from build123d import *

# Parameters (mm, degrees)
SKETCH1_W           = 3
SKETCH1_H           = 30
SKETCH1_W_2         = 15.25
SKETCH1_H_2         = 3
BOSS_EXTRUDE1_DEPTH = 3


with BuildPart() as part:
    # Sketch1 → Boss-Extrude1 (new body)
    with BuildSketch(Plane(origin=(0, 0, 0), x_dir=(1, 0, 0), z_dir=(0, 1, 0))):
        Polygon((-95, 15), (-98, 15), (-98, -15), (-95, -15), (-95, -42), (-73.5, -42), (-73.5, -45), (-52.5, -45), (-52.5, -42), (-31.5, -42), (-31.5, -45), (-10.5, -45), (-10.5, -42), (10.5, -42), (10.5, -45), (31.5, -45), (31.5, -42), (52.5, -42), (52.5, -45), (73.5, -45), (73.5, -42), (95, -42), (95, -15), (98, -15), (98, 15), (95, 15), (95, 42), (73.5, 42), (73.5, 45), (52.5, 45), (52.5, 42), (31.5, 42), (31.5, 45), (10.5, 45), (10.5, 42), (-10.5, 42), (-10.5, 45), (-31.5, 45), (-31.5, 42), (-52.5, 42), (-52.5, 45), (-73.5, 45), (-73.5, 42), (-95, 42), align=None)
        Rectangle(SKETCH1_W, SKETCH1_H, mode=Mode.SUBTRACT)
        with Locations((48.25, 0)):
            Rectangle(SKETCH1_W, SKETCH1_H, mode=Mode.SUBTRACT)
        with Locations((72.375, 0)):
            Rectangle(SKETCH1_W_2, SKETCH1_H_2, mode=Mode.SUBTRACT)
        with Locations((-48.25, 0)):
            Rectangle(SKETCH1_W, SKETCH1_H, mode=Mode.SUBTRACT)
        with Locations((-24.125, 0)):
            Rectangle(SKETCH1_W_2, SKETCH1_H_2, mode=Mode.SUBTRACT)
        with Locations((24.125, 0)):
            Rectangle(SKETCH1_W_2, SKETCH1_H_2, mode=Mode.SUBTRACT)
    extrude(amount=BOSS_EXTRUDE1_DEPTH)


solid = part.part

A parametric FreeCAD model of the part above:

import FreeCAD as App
import Part
import Sketcher
Q = App.Units.Quantity


def add_polygon(sketch, points):
    """Adds a closed chain of lines whose ends are joined by coincident constraints."""
    first, n = sketch.GeometryCount, len(points)
    for a, b in zip(points, points[1:] + points[:1]):
        sketch.addGeometry(Part.LineSegment(App.Vector(*a, 0), App.Vector(*b, 0)), False)
    for i in range(n):
        sketch.addConstraint(Sketcher.Constraint("Coincident", first + i, 2, first + (i + 1) % n, 1))

doc = App.newDocument("Part")
body = doc.addObject("PartDesign::Body", "Body")

sketch1 = body.newObject("Sketcher::SketchObject", "Sketch")
sketch1.AttachmentSupport = (doc.getObject("XZ_Plane"), [""])
sketch1.MapMode = "FlatFace"
add_polygon(sketch1, [(-95, -15), (-98, -15), (-98, 15), (-95, 15), (-95, 42), (-73.5, 42), (-73.5, 45), (-52.5, 45), (-52.5, 42), (-31.5, 42), (-31.5, 45), (-10.5, 45), (-10.5, 42), (10.5, 42), (10.5, 45), (31.5, 45), (31.5, 42), (52.5, 42), (52.5, 45), (73.5, 45), (73.5, 42), (95, 42), (95, 15), (98, 15), (98, -15), (95, -15), (95, -42), (73.5, -42), (73.5, -45), (52.5, -45), (52.5, -42), (31.5, -42), (31.5, -45), (10.5, -45), (10.5, -42), (-10.5, -42), (-10.5, -45), (-31.5, -45), (-31.5, -42), (-52.5, -42), (-52.5, -45), (-73.5, -45), (-73.5, -42), (-95, -42)])
add_polygon(sketch1, [(-46.75, 15), (-49.75, 15), (-49.75, -15), (-46.75, -15)])
add_polygon(sketch1, [(-16.5, 1.5), (-31.75, 1.5), (-31.75, -1.5), (-16.5, -1.5)])
add_polygon(sketch1, [(1.5, 15), (-1.5, 15), (-1.5, -15), (1.5, -15)])
add_polygon(sketch1, [(31.75, 1.5), (16.5, 1.5), (16.5, -1.5), (31.75, -1.5)])
add_polygon(sketch1, [(49.75, 15), (46.75, 15), (46.75, -15), (49.75, -15)])
add_polygon(sketch1, [(80, 1.5), (64.75, 1.5), (64.75, -1.5), (80, -1.5)])
sketch1.addConstraint([
    Sketcher.Constraint("Horizontal", 0),
    Sketcher.Constraint("Vertical", 1),
    Sketcher.Constraint("Horizontal", 2),
    Sketcher.Constraint("Vertical", 3),
    Sketcher.Constraint("Horizontal", 4),
    Sketcher.Constraint("Vertical", 5),
    Sketcher.Constraint("Horizontal", 6),
    Sketcher.Constraint("Vertical", 7),
    Sketcher.Constraint("Horizontal", 8),
    Sketcher.Constraint("Vertical", 9),
    Sketcher.Constraint("Horizontal", 10),
    Sketcher.Constraint("Vertical", 11),
    Sketcher.Constraint("Horizontal", 12),
    Sketcher.Constraint("Vertical", 13),
    Sketcher.Constraint("Horizontal", 14),
    Sketcher.Constraint("Vertical", 15),
    Sketcher.Constraint("Horizontal", 16),
    Sketcher.Constraint("Vertical", 17),
    Sketcher.Constraint("Horizontal", 18),
    Sketcher.Constraint("Vertical", 19),
    Sketcher.Constraint("Horizontal", 20),
    Sketcher.Constraint("Vertical", 21),
    Sketcher.Constraint("Horizontal", 22),
    Sketcher.Constraint("Vertical", 23),
    Sketcher.Constraint("Horizontal", 24),
    Sketcher.Constraint("Vertical", 25),
    Sketcher.Constraint("Horizontal", 26),
    Sketcher.Constraint("Vertical", 27),
    Sketcher.Constraint("Horizontal", 28),
    Sketcher.Constraint("Vertical", 29),
    Sketcher.Constraint("Horizontal", 30),
    Sketcher.Constraint("Vertical", 31),
    Sketcher.Constraint("Horizontal", 32),
    Sketcher.Constraint("Vertical", 33),
    Sketcher.Constraint("Horizontal", 34),
    Sketcher.Constraint("Vertical", 35),
    Sketcher.Constraint("Horizontal", 36),
    Sketcher.Constraint("Vertical", 37),
    Sketcher.Constraint("Horizontal", 38),
    Sketcher.Constraint("Vertical", 39),
    Sketcher.Constraint("Horizontal", 40),
    Sketcher.Constraint("Vertical", 41),
    Sketcher.Constraint("Horizontal", 42),
    Sketcher.Constraint("Vertical", 43),
    Sketcher.Constraint("Horizontal", 44),
    Sketcher.Constraint("Vertical", 45),
    Sketcher.Constraint("Horizontal", 46),
    Sketcher.Constraint("Vertical", 47),
    Sketcher.Constraint("Horizontal", 48),
    Sketcher.Constraint("Vertical", 49),
    Sketcher.Constraint("Horizontal", 50),
    Sketcher.Constraint("Vertical", 51),
    Sketcher.Constraint("Horizontal", 52),
    Sketcher.Constraint("Vertical", 53),
    Sketcher.Constraint("Horizontal", 54),
    Sketcher.Constraint("Vertical", 55),
    Sketcher.Constraint("Horizontal", 56),
    Sketcher.Constraint("Vertical", 57),
    Sketcher.Constraint("Horizontal", 58),
    Sketcher.Constraint("Vertical", 59),
    Sketcher.Constraint("Horizontal", 60),
    Sketcher.Constraint("Vertical", 61),
    Sketcher.Constraint("Horizontal", 62),
    Sketcher.Constraint("Vertical", 63),
    Sketcher.Constraint("Horizontal", 64),
    Sketcher.Constraint("Vertical", 65),
    Sketcher.Constraint("Horizontal", 66),
    Sketcher.Constraint("Vertical", 67),
    Sketcher.Constraint("Symmetric", 0, 2, 22, 2, -1, 1),
    Sketcher.Constraint("Symmetric", 2, 2, 24, 2, -1, 1),
    Sketcher.Constraint("Symmetric", 4, 2, 26, 2, -1, 1),
    Sketcher.Constraint("Symmetric", 6, 2, 28, 2, -1, 1),
    Sketcher.Constraint("Symmetric", 8, 2, 30, 2, -1, 1),
    Sketcher.Constraint("Symmetric", 10, 2, 32, 2, -1, 1),
    Sketcher.Constraint("Symmetric", 12, 2, 34, 2, -1, 1),
    Sketcher.Constraint("Symmetric", 14, 2, 36, 2, -1, 1),
    Sketcher.Constraint("Symmetric", 16, 2, 38, 2, -1, 1),
    Sketcher.Constraint("Symmetric", 18, 2, 40, 2, -1, 1),
    Sketcher.Constraint("Symmetric", 20, 2, 42, 2, -1, 1),
    Sketcher.Constraint("Symmetric", 52, 2, 54, 2, -1, 1),
    Sketcher.Constraint("Symmetric", 50, 2, 56, 2, -1, 1),
    Sketcher.Constraint("Symmetric", 48, 2, 58, 2, -1, 1),
    Sketcher.Constraint("Symmetric", 46, 2, 60, 2, -1, 1),
    Sketcher.Constraint("Symmetric", 44, 2, 62, 2, -1, 1),
    Sketcher.Constraint("Symmetric", 10, 2, 13, 2, -2),
    Sketcher.Constraint("Symmetric", 8, 2, 15, 2, -2),
    Sketcher.Constraint("Symmetric", 6, 2, 17, 2, -2),
    Sketcher.Constraint("Symmetric", 4, 2, 19, 2, -2),
    Sketcher.Constraint("Symmetric", 2, 2, 21, 2, -2),
    Sketcher.Constraint("Horizontal", 4, 2, 7, 2),
    Sketcher.Constraint("Horizontal", 6, 2, 9, 2),
    Sketcher.Constraint("Horizontal", 8, 2, 11, 2),
    Sketcher.Constraint("Horizontal", 22, 2, 44, 2),
    Sketcher.Constraint("Horizontal", 43, 2, 45, 2),
    Sketcher.Constraint("Horizontal", 47, 2, 52, 2),
    Sketcher.Constraint("Horizontal", 51, 2, 56, 2),
    Sketcher.Constraint("Horizontal", 59, 2, 64, 2),
    Sketcher.Constraint("Horizontal", 58, 2, 65, 2),
    Sketcher.Constraint("Equal", 6, 8),
    Sketcher.Constraint("Equal", 8, 10),
    Sketcher.Constraint("Equal", 10, 12),
    Sketcher.Constraint("Equal", 24, 44),
    Sketcher.Constraint("Equal", 46, 52),
    Sketcher.Constraint("Equal", 58, 64),
    Sketcher.Constraint("Equal", 62, 5),
    Sketcher.Constraint("Equal", 41, 49),
    Sketcher.Constraint("DistanceX", 0, 2, 0, 1, Q("3 mm")),
    Sketcher.Constraint("DistanceX", 6, 1, 6, 2, Q("21 mm")),
    Sketcher.Constraint("DistanceY", 1, 1, 1, 2, Q("30 mm")),
    Sketcher.Constraint("DistanceY", 3, 1, 3, 2, Q("27 mm")),
    Sketcher.Constraint("DistanceX", 4, 1, 4, 2, Q("21.5 mm")),
    Sketcher.Constraint("DistanceX", -1, 1, 66, 2, Q("80 mm")),
    Sketcher.Constraint("DistanceX", 48, 2, 48, 1, Q("15.25 mm")),
    Sketcher.Constraint("DistanceX", 50, 2, -1, 1, Q("16.5 mm")),
    Sketcher.Constraint("DistanceX", 44, 2, -1, 1, Q("49.75 mm")),
])
pad1 = body.newObject("PartDesign::Pad", "Pad")
pad1.Profile = sketch1
pad1.Length = 3
pad1.Reversed = True

doc.recompute()
